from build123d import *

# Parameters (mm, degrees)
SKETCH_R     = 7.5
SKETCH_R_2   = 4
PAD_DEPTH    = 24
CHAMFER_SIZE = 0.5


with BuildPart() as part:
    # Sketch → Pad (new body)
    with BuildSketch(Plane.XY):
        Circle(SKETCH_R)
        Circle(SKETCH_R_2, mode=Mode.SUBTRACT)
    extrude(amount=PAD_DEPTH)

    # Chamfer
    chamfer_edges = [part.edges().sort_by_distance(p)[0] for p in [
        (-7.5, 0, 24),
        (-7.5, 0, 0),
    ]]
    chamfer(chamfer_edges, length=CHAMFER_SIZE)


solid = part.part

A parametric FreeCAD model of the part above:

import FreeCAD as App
import Part
import Sketcher
from FreeCAD import Vector


def edges_at(feature, points):
    """Names of the edges that pass closest to the given points."""
    edges = feature.Shape.Edges
    near = lambda p: min(range(len(edges)), key=lambda i: edges[i].distToShape(Part.Vertex(*p))[0])
    return sorted({f"Edge{near(p) + 1}" for p in points})

doc = App.newDocument("Part")
body = doc.addObject("PartDesign::Body", "Body")

# Sketch on XY plane
sketch1 = body.newObject("Sketcher::SketchObject", "Sketch")
sketch1.AttachmentSupport = (doc.getObject("XY_Plane"), [""])
sketch1.MapMode = "FlatFace"
sketch1.addGeometry([
    Part.Circle(Vector(0, 0, 0), Vector(0, 0, 1), 7.5),
    Part.Circle(Vector(0, 0, 0), Vector(0, 0, 1), 4),
], False)
sketch1.addConstraint([
    Sketcher.Constraint("Coincident", 0, 3, -1, 1),
    Sketcher.Constraint("Coincident", 1, 3, -1, 1),
    Sketcher.Constraint("Diameter", 0, 15.0),
    Sketcher.Constraint("Diameter", 1, 8.0),
])
pad1 = body.newObject("PartDesign::Pad", "Pad")
pad1.Profile = sketch1
pad1.Length = 24
doc.recompute()

chamfer = body.newObject("PartDesign::Chamfer", "Chamfer")
chamfer.Base = (pad1, edges_at(pad1, [(-7.5, 0, 24), (-7.5, 0, 0)]))
chamfer.Size = 0.5

doc.recompute()
